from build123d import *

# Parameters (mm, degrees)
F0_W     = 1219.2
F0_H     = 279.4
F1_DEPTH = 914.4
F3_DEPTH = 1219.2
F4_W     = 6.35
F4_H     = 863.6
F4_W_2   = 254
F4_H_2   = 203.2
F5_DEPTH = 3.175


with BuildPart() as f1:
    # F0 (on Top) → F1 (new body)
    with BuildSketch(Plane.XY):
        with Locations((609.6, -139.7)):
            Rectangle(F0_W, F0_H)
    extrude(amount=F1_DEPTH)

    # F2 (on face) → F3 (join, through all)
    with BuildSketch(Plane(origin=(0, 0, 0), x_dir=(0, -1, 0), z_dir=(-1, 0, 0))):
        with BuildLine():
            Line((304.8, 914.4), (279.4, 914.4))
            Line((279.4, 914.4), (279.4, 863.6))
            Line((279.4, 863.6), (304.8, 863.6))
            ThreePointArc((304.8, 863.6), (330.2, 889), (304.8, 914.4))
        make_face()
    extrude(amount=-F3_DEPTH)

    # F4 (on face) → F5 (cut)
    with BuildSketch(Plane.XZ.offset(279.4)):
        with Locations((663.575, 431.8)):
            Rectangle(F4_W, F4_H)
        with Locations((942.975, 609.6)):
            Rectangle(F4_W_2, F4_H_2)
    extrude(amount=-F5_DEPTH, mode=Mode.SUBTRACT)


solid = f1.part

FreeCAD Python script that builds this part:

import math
import FreeCAD as App
import Part
import Sketcher
Q = App.Units.Quantity


def add_polygon(sketch, points):
    """Adds a closed chain of lines whose ends are joined by coincident constraints."""
    first, n = sketch.GeometryCount, len(points)
    for a, b in zip(points, points[1:] + points[:1]):
        sketch.addGeometry(Part.LineSegment(App.Vector(*a, 0), App.Vector(*b, 0)), False)
    for i in range(n):
        sketch.addConstraint(Sketcher.Constraint("Coincident", first + i, 2, first + (i + 1) % n, 1))

doc = App.newDocument("Part")
params = doc.addObject("Spreadsheet::Sheet", "Params")
for row, (alias, value) in enumerate([
    ("sketch1_width", "48 in"),
    ("sketch1_height", "11 in"),
    ("pad1_length", "36 in"),
    ("sketch2_radius", "1 in"),
    ("sketch2_width", "1 in"),
    ("pad2_length", "48 in"),
    ("sketch3_width", "10 in"),
    ("sketch3_height", "34 in"),
    ("sketch3_height2", "8 in"),
    ("sketch3_width2", "0.25 in"),
    ("pocket1_length", "0.125 in"),
], start=1):
    params.set(f"A{row}", alias)
    params.set(f"B{row}", "=" + value)
    params.setAlias(f"B{row}", alias)

body = doc.addObject("PartDesign::Body", "Body")

sketch1 = body.newObject("Sketcher::SketchObject", "Sketch")
sketch1.AttachmentSupport = (doc.getObject("XY_Plane"), [""])
sketch1.MapMode = "FlatFace"
add_polygon(sketch1, [(0, 0), (0, -279), (1219, -279), (1219, 0)])
sketch1.addConstraint([
    Sketcher.Constraint("Vertical", 0),
    Sketcher.Constraint("Horizontal", 1),
    Sketcher.Constraint("Vertical", 2),
    Sketcher.Constraint("Horizontal", 3),
    Sketcher.Constraint("Coincident", 3, 2, -1, 1),
    Sketcher.Constraint("DistanceX", 1, 1, 1, 2, Q("48 in")),
    Sketcher.Constraint("DistanceY", 0, 2, 0, 1, Q("11 in")),
])
sketch1.setExpression("Constraints[9]", "Params.sketch1_width")
sketch1.setExpression("Constraints[10]", "Params.sketch1_height")
pad1 = body.newObject("PartDesign::Pad", "Pad")
pad1.Profile = sketch1
pad1.setExpression("Length", "Params.pad1_length")

sketch2 = body.newObject("Sketcher::SketchObject", "Sketch001")
sketch2.AttachmentSupport = (doc.getObject("YZ_Plane"), [""])
sketch2.MapMode = "FlatFace"
sketch2.addGeometry([
    Part.LineSegment(App.Vector(-305, 914, 0), App.Vector(-279, 914, 0)),
    Part.LineSegment(App.Vector(-279, 914, 0), App.Vector(-279, 864, 0)),
    Part.LineSegment(App.Vector(-279, 864, 0), App.Vector(-305, 864, 0)),
    Part.ArcOfCircle(Part.Circle(App.Vector(-305, 889, 0), App.Vector(0, 0, 1), 25), math.radians(90), math.radians(270)),
], False)
sketch2.addConstraint([
    Sketcher.Constraint("Coincident", 0, 2, 1, 1),
    Sketcher.Constraint("Coincident", 1, 2, 2, 1),
    Sketcher.Constraint("Tangent", 2, 2, 3, 2),
    Sketcher.Constraint("Tangent", 3, 1, 0, 1),
    Sketcher.Constraint("Horizontal", 0),
    Sketcher.Constraint("Vertical", 1),
    Sketcher.Constraint("Horizontal", 2),
    Sketcher.Constraint("Radius", 3, Q("1 in")),
    Sketcher.Constraint("DistanceX", 0, 1, 0, 2, Q("1 in")),
    Sketcher.Constraint("DistanceX", 3, 3, -1, 1, Q("12 in")),
    Sketcher.Constraint("DistanceY", -1, 1, 3, 3, Q("35 in")),
])
sketch2.setExpression("Constraints[7]", "Params.sketch2_radius")
sketch2.setExpression("Constraints[8]", "Params.sketch2_width")
pad2 = body.newObject("PartDesign::Pad", "Pad001")
pad2.Profile = sketch2
pad2.setExpression("Length", "Params.pad2_length")

sketch3 = body.newObject("Sketcher::SketchObject", "Sketch002")
sketch3.AttachmentSupport = (doc.getObject("XZ_Plane"), [""])
sketch3.MapMode = "FlatFace"
sketch3.AttachmentOffset = App.Placement(App.Vector(0, 0, 11 * 25.4), App.Rotation())
add_polygon(sketch3, [(660, 864), (660, 0), (667, 0), (667, 864)])
add_polygon(sketch3, [(816, 711), (816, 508), (1070, 508), (1070, 711)])
sketch3.addConstraint([
    Sketcher.Constraint("Vertical", 0),
    Sketcher.Constraint("Horizontal", 1),
    Sketcher.Constraint("Vertical", 2),
    Sketcher.Constraint("Horizontal", 3),
    Sketcher.Constraint("Vertical", 4),
    Sketcher.Constraint("Horizontal", 5),
    Sketcher.Constraint("Vertical", 6),
    Sketcher.Constraint("Horizontal", 7),
    Sketcher.Constraint("PointOnObject", 0, 2, -1),
    Sketcher.Constraint("DistanceX", 5, 1, 5, 2, Q("10 in")),
    Sketcher.Constraint("DistanceY", 0, 2, 0, 1, Q("34 in")),
    Sketcher.Constraint("DistanceY", 4, 2, 4, 1, Q("8 in")),
    Sketcher.Constraint("DistanceX", -1, 1, 0, 2, Q("26 in")),
    Sketcher.Constraint("DistanceY", -1, 1, 4, 2, Q("20 in")),
    Sketcher.Constraint("DistanceX", 1, 1, 1, 2, Q("0.25 in")),
    Sketcher.Constraint("DistanceX", -1, 1, 4, 2, Q("32.125 in")),
])
sketch3.setExpression("Constraints[17]", "Params.sketch3_width")
sketch3.setExpression("Constraints[18]", "Params.sketch3_height")
sketch3.setExpression("Constraints[19]", "Params.sketch3_height2")
sketch3.setExpression("Constraints[22]", "Params.sketch3_width2")
pocket1 = body.newObject("PartDesign::Pocket", "Pocket")
pocket1.Profile = sketch3
pocket1.setExpression("Length", "Params.pocket1_length")

doc.recompute()
